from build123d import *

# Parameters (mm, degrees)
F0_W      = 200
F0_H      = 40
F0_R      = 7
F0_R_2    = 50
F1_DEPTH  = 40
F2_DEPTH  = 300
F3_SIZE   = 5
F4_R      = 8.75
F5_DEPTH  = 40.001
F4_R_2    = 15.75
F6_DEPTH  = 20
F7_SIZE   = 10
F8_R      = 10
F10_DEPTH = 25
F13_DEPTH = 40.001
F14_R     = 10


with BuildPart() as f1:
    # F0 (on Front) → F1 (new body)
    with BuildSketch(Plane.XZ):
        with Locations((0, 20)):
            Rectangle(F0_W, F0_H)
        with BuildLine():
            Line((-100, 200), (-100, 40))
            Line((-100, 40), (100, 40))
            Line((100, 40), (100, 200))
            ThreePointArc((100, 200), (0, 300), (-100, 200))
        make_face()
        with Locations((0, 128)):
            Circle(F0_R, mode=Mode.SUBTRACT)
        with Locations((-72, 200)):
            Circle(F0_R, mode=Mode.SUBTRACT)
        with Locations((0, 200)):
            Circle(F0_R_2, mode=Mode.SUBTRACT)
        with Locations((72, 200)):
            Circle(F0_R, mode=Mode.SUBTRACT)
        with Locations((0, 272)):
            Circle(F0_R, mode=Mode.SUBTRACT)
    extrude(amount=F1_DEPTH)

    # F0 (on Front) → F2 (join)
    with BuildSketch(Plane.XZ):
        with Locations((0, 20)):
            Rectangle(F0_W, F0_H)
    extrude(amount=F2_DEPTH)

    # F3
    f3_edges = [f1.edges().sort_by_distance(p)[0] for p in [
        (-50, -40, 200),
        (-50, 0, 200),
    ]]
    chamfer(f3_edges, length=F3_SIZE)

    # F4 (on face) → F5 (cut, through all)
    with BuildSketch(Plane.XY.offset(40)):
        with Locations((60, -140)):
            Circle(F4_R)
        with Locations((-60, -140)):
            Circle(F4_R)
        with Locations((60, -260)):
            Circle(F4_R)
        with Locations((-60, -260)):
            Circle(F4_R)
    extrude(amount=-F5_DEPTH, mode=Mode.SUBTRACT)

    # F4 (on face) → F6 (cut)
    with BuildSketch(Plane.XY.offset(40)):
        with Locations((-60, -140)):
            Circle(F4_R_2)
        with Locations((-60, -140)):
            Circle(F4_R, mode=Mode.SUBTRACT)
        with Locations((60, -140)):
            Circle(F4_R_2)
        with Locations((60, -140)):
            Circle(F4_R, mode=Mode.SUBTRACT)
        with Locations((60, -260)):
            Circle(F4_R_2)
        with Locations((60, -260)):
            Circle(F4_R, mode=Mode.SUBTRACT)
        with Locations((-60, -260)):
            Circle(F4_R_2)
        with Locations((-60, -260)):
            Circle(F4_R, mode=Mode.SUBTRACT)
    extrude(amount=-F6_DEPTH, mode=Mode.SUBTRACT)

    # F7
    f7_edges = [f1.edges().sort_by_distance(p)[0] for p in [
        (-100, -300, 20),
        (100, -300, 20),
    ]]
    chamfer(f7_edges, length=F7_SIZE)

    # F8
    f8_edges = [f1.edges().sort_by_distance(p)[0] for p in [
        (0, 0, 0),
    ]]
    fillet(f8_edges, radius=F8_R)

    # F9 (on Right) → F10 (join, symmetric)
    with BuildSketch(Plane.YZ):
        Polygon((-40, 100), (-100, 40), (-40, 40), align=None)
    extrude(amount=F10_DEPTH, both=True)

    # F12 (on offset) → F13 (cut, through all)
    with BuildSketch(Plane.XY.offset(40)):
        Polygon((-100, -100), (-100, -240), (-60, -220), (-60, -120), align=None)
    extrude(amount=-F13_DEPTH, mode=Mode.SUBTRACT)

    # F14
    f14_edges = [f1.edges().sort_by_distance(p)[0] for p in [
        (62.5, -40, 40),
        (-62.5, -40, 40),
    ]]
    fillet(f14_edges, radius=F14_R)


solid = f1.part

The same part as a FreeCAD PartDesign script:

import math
import FreeCAD as App
import Part
import Sketcher
from FreeCAD import Vector
Q = App.Units.Quantity


def edges_at(feature, points):
    """Names of the edges that pass closest to the given points."""
    edges = feature.Shape.Edges
    near = lambda p: min(range(len(edges)), key=lambda i: edges[i].distToShape(Part.Vertex(*p))[0])
    return sorted({f"Edge{near(p) + 1}" for p in points})

doc = App.newDocument("Part")
body = doc.addObject("PartDesign::Body", "Body")

# Sketch on XZ plane
sketch1 = body.newObject("Sketcher::SketchObject", "Sketch")
sketch1.AttachmentSupport = (doc.getObject("XZ_Plane"), [""])
sketch1.MapMode = "FlatFace"
sketch1.addGeometry(Part.LineSegment(Vector(-100, 0, 0), Vector(100, 0, 0)), False)
sketch1.addGeometry(Part.LineSegment(Vector(100, 0, 0), Vector(100, 200, 0)), False)
sketch1.addGeometry(Part.ArcOfCircle(Part.Circle(Vector(0, 200, 0), Vector(0, 0, 1), 100), math.radians(0), math.radians(180)), False)
sketch1.addGeometry(Part.LineSegment(Vector(-100, 200, 0), Vector(-100, 0, 0)), False)
sketch1.addGeometry(Part.Circle(Vector(0, 128, 0), Vector(0, 0, 1), 7), False)
sketch1.addGeometry(Part.Circle(Vector(-72, 200, 0), Vector(0, 0, 1), 7), False)
sketch1.addGeometry(Part.Circle(Vector(0, 200, 0), Vector(0, 0, 1), 50), False)
sketch1.addGeometry(Part.Circle(Vector(72, 200, 0), Vector(0, 0, 1), 7), False)
sketch1.addGeometry(Part.Circle(Vector(0, 272, 0), Vector(0, 0, 1), 7), False)
sketch1.addConstraint(Sketcher.Constraint("Coincident", 0, 2, 1, 1))
sketch1.addConstraint(Sketcher.Constraint("Tangent", 1, 2, 2, 1))
sketch1.addConstraint(Sketcher.Constraint("Tangent", 2, 2, 3, 1))
sketch1.addConstraint(Sketcher.Constraint("Coincident", 3, 2, 0, 1))
sketch1.addConstraint(Sketcher.Constraint("Horizontal", 0))
sketch1.addConstraint(Sketcher.Constraint("Vertical", 1))
sketch1.addConstraint(Sketcher.Constraint("Vertical", 3))
sketch1.addConstraint(Sketcher.Constraint("Coincident", 6, 3, 2, 3))
sketch1.addConstraint(Sketcher.Constraint("Equal", 4, 5))
sketch1.addConstraint(Sketcher.Constraint("Equal", 5, 7))
sketch1.addConstraint(Sketcher.Constraint("Equal", 7, 8))
sketch1.addConstraint(Sketcher.Constraint("Symmetric", 0, 2, 3, 2, -1, 1))
sketch1.addConstraint(Sketcher.Constraint("Symmetric", 5, 3, 7, 3, -2))
sketch1.addConstraint(Sketcher.Constraint("PointOnObject", 4, 3, -2))
sketch1.addConstraint(Sketcher.Constraint("PointOnObject", 8, 3, -2))
sketch1.addConstraint(Sketcher.Constraint("Horizontal", 2, 3, 5, 3))
sketch1.addConstraint(Sketcher.Constraint("Equal", 0, 1))
sketch1.addConstraint(Sketcher.Constraint("Diameter", 4, Q("14 mm")))
sketch1.addConstraint(Sketcher.Constraint("Diameter", 6, Q("100 mm")))
sketch1.addConstraint(Sketcher.Constraint("Radius", 2, Q("100 mm")))
sketch1.addConstraint(Sketcher.Constraint("DistanceY", -1, 1, 4, 3, Q("128 mm")))
sketch1.addConstraint(Sketcher.Constraint("DistanceX", 5, 3, -1, 1, Q("72 mm")))
sketch1.addConstraint(Sketcher.Constraint("DistanceY", -1, 1, 8, 3, Q("272 mm")))
pad1 = body.newObject("PartDesign::Pad", "Pad")
pad1.Profile = sketch1
pad1.Length = 40

# Sketch on XZ plane
sketch2 = body.newObject("Sketcher::SketchObject", "Sketch001")
sketch2.AttachmentSupport = (doc.getObject("XZ_Plane"), [""])
sketch2.MapMode = "FlatFace"
sketch2.addGeometry(Part.LineSegment(Vector(-100, 40, 0), Vector(-100, 0, 0)), False)
sketch2.addGeometry(Part.LineSegment(Vector(-100, 0, 0), Vector(100, 0, 0)), False)
sketch2.addGeometry(Part.LineSegment(Vector(100, 0, 0), Vector(100, 40, 0)), False)
sketch2.addGeometry(Part.LineSegment(Vector(100, 40, 0), Vector(-100, 40, 0)), False)
sketch2.addConstraint(Sketcher.Constraint("Coincident", 0, 2, 1, 1))
sketch2.addConstraint(Sketcher.Constraint("Coincident", 1, 2, 2, 1))
sketch2.addConstraint(Sketcher.Constraint("Coincident", 2, 2, 3, 1))
sketch2.addConstraint(Sketcher.Constraint("Coincident", 3, 2, 0, 1))
sketch2.addConstraint(Sketcher.Constraint("Vertical", 0))
sketch2.addConstraint(Sketcher.Constraint("Horizontal", 1))
sketch2.addConstraint(Sketcher.Constraint("Vertical", 2))
sketch2.addConstraint(Sketcher.Constraint("Horizontal", 3))
sketch2.addConstraint(Sketcher.Constraint("Symmetric", 0, 2, 1, 2, -1, 1))
sketch2.addConstraint(Sketcher.Constraint("DistanceX", 1, 1, 1, 2, Q("200 mm")))
sketch2.addConstraint(Sketcher.Constraint("DistanceY", 0, 2, 0, 1, Q("40 mm")))
pad2 = body.newObject("PartDesign::Pad", "Pad001")
pad2.Profile = sketch2
pad2.Length = 300
doc.recompute()

chamfer = body.newObject("PartDesign::Chamfer", "Chamfer")
chamfer.Base = (pad2, edges_at(pad2, [(-50, -40, 200), (-50, 0, 200)]))
chamfer.Size = 5

# Sketch on XY plane
sketch3 = body.newObject("Sketcher::SketchObject", "Sketch002")
sketch3.AttachmentSupport = (doc.getObject("XY_Plane"), [""])
sketch3.MapMode = "FlatFace"
sketch3.AttachmentOffset = App.Placement(Vector(0, 0, 40), App.Rotation())
sketch3.addGeometry(Part.Circle(Vector(60, -140, 0), Vector(0, 0, 1), 9), False)
sketch3.addGeometry(Part.Circle(Vector(-60, -140, 0), Vector(0, 0, 1), 9), False)
sketch3.addGeometry(Part.Circle(Vector(60, -260, 0), Vector(0, 0, 1), 9), False)
sketch3.addGeometry(Part.Circle(Vector(-60, -260, 0), Vector(0, 0, 1), 9), False)
sketch3.addConstraint(Sketcher.Constraint("Equal", 0, 1))
sketch3.addConstraint(Sketcher.Constraint("Equal", 1, 2))
sketch3.addConstraint(Sketcher.Constraint("Equal", 2, 3))
sketch3.addConstraint(Sketcher.Constraint("Symmetric", 0, 3, 1, 3, -2))
sketch3.addConstraint(Sketcher.Constraint("Symmetric", 2, 3, 3, 3, -2))
sketch3.addConstraint(Sketcher.Constraint("Vertical", 0, 3, 2, 3))
sketch3.addConstraint(Sketcher.Constraint("Diameter", 0, Q("17.5 mm")))
sketch3.addConstraint(Sketcher.Constraint("DistanceX", -1, 1, 0, 3, Q("60 mm")))
sketch3.addConstraint(Sketcher.Constraint("DistanceY", 0, 3, -1, 1, Q("140 mm")))
sketch3.addConstraint(Sketcher.Constraint("DistanceY", 2, 3, -1, 1, Q("260 mm")))
pocket1 = body.newObject("PartDesign::Pocket", "Pocket")
pocket1.Profile = sketch3
pocket1.Type = "ThroughAll"

# Sketch on XY plane
sketch4 = body.newObject("Sketcher::SketchObject", "Sketch003")
sketch4.AttachmentSupport = (doc.getObject("XY_Plane"), [""])
sketch4.MapMode = "FlatFace"
sketch4.AttachmentOffset = App.Placement(Vector(0, 0, 40), App.Rotation())
sketch4.addGeometry(Part.Circle(Vector(-60, -140, 0), Vector(0, 0, 1), 16), False)
sketch4.addGeometry(Part.Circle(Vector(-60, -140, 0), Vector(0, 0, 1), 9), False)
sketch4.addGeometry(Part.Circle(Vector(60, -140, 0), Vector(0, 0, 1), 16), False)
sketch4.addGeometry(Part.Circle(Vector(60, -140, 0), Vector(0, 0, 1), 9), False)
sketch4.addGeometry(Part.Circle(Vector(60, -260, 0), Vector(0, 0, 1), 16), False)
sketch4.addGeometry(Part.Circle(Vector(60, -260, 0), Vector(0, 0, 1), 9), False)
sketch4.addGeometry(Part.Circle(Vector(-60, -260, 0), Vector(0, 0, 1), 16), False)
sketch4.addGeometry(Part.Circle(Vector(-60, -260, 0), Vector(0, 0, 1), 9), False)
sketch4.addConstraint(Sketcher.Constraint("Coincident", 1, 3, 0, 3))
sketch4.addConstraint(Sketcher.Constraint("Coincident", 3, 3, 2, 3))
sketch4.addConstraint(Sketcher.Constraint("Coincident", 5, 3, 4, 3))
sketch4.addConstraint(Sketcher.Constraint("Coincident", 7, 3, 6, 3))
sketch4.addConstraint(Sketcher.Constraint("Equal", 0, 2))
sketch4.addConstraint(Sketcher.Constraint("Equal", 1, 3))
sketch4.addConstraint(Sketcher.Constraint("Equal", 2, 4))
sketch4.addConstraint(Sketcher.Constraint("Equal", 3, 5))
sketch4.addConstraint(Sketcher.Constraint("Equal", 4, 6))
sketch4.addConstraint(Sketcher.Constraint("Equal", 5, 7))
sketch4.addConstraint(Sketcher.Constraint("Symmetric", 0, 3, 2, 3, -2))
sketch4.addConstraint(Sketcher.Constraint("Symmetric", 4, 3, 6, 3, -2))
sketch4.addConstraint(Sketcher.Constraint("Vertical", 3, 3, 4, 3))
sketch4.addConstraint(Sketcher.Constraint("Diameter", 0, Q("31.5 mm")))
sketch4.addConstraint(Sketcher.Constraint("Diameter", 1, Q("17.5 mm")))
sketch4.addConstraint(Sketcher.Constraint("DistanceX", 0, 3, -1, 1, Q("60 mm")))
sketch4.addConstraint(Sketcher.Constraint("DistanceY", 0, 3, -1, 1, Q("140 mm")))
sketch4.addConstraint(Sketcher.Constraint("DistanceY", 4, 3, -1, 1, Q("260 mm")))
pocket2 = body.newObject("PartDesign::Pocket", "Pocket001")
pocket2.Profile = sketch4
pocket2.Length = 20
doc.recompute()

chamfer2 = body.newObject("PartDesign::Chamfer", "Chamfer001")
chamfer2.Base = (pocket2, edges_at(pocket2, [(-100, -300, 20), (100, -300, 20)]))
chamfer2.Size = 10
doc.recompute()

fillet = body.newObject("PartDesign::Fillet", "Fillet")
fillet.Base = (chamfer2, edges_at(chamfer2, [(0, 0, 0)]))
fillet.Radius = 10

# Sketch on YZ plane
sketch5 = body.newObject("Sketcher::SketchObject", "Sketch004")
sketch5.AttachmentSupport = (doc.getObject("YZ_Plane"), [""])
sketch5.MapMode = "FlatFace"
sketch5.addGeometry(Part.LineSegment(Vector(-40, 100, 0), Vector(-100, 40, 0)), False)
sketch5.addGeometry(Part.LineSegment(Vector(-100, 40, 0), Vector(-40, 40, 0)), False)
sketch5.addGeometry(Part.LineSegment(Vector(-40, 40, 0), Vector(-40, 100, 0)), False)
sketch5.addConstraint(Sketcher.Constraint("Coincident", 0, 2, 1, 1))
sketch5.addConstraint(Sketcher.Constraint("Coincident", 1, 2, 2, 1))
sketch5.addConstraint(Sketcher.Constraint("Coincident", 2, 2, 0, 1))
sketch5.addConstraint(Sketcher.Constraint("Horizontal", 1))
sketch5.addConstraint(Sketcher.Constraint("Vertical", 2))
sketch5.addConstraint(Sketcher.Constraint("Equal", 1, 2))
sketch5.addConstraint(Sketcher.Constraint("DistanceX", 1, 1, 1, 2, Q("60 mm")))
sketch5.addConstraint(Sketcher.Constraint("DistanceX", 0, 2, -1, 1, Q("100 mm")))
sketch5.addConstraint(Sketcher.Constraint("DistanceY", -1, 1, 0, 2, Q("40 mm")))
pad3 = body.newObject("PartDesign::Pad", "Pad002")
pad3.Profile = sketch5
pad3.Length = 50
pad3.Midplane = True

# Sketch on XY plane
sketch6 = body.newObject("Sketcher::SketchObject", "Sketch005")
sketch6.AttachmentSupport = (doc.getObject("XY_Plane"), [""])
sketch6.MapMode = "FlatFace"
sketch6.AttachmentOffset = App.Placement(Vector(0, 0, 40), App.Rotation())
sketch6.addGeometry(Part.LineSegment(Vector(-100, -100, 0), Vector(-100, -240, 0)), False)
sketch6.addGeometry(Part.LineSegment(Vector(-100, -240, 0), Vector(-60, -220, 0)), False)
sketch6.addGeometry(Part.LineSegment(Vector(-60, -220, 0), Vector(-60, -120, 0)), False)
sketch6.addGeometry(Part.LineSegment(Vector(-60, -120, 0), Vector(-100, -100, 0)), False)
sketch6.addConstraint(Sketcher.Constraint("Coincident", 0, 2, 1, 1))
sketch6.addConstraint(Sketcher.Constraint("Coincident", 1, 2, 2, 1))
sketch6.addConstraint(Sketcher.Constraint("Coincident", 2, 2, 3, 1))
sketch6.addConstraint(Sketcher.Constraint("Coincident", 3, 2, 0, 1))
sketch6.addConstraint(Sketcher.Constraint("Vertical", 0))
sketch6.addConstraint(Sketcher.Constraint("Vertical", 2))
sketch6.addConstraint(Sketcher.Constraint("Equal", 1, 3))
sketch6.addConstraint(Sketcher.Constraint("DistanceY", 0, 2, 0, 1, Q("140 mm")))
sketch6.addConstraint(Sketcher.Constraint("DistanceY", 2, 1, 2, 2, Q("100 mm")))
sketch6.addConstraint(Sketcher.Constraint("DistanceX", 0, 2, -1, 1, Q("100 mm")))
sketch6.addConstraint(Sketcher.Constraint("DistanceY", 0, 2, -1, 1, Q("240 mm")))
sketch6.addConstraint(Sketcher.Constraint("DistanceX", 1, 2, -1, 1, Q("60 mm")))
pocket3 = body.newObject("PartDesign::Pocket", "Pocket002")
pocket3.Profile = sketch6
pocket3.Type = "ThroughAll"
doc.recompute()

fillet2 = body.newObject("PartDesign::Fillet", "Fillet001")
fillet2.Base = (pocket3, edges_at(pocket3, [(62.5, -40, 40), (-62.5, -40, 40)]))
fillet2.Radius = 10

doc.recompute()
